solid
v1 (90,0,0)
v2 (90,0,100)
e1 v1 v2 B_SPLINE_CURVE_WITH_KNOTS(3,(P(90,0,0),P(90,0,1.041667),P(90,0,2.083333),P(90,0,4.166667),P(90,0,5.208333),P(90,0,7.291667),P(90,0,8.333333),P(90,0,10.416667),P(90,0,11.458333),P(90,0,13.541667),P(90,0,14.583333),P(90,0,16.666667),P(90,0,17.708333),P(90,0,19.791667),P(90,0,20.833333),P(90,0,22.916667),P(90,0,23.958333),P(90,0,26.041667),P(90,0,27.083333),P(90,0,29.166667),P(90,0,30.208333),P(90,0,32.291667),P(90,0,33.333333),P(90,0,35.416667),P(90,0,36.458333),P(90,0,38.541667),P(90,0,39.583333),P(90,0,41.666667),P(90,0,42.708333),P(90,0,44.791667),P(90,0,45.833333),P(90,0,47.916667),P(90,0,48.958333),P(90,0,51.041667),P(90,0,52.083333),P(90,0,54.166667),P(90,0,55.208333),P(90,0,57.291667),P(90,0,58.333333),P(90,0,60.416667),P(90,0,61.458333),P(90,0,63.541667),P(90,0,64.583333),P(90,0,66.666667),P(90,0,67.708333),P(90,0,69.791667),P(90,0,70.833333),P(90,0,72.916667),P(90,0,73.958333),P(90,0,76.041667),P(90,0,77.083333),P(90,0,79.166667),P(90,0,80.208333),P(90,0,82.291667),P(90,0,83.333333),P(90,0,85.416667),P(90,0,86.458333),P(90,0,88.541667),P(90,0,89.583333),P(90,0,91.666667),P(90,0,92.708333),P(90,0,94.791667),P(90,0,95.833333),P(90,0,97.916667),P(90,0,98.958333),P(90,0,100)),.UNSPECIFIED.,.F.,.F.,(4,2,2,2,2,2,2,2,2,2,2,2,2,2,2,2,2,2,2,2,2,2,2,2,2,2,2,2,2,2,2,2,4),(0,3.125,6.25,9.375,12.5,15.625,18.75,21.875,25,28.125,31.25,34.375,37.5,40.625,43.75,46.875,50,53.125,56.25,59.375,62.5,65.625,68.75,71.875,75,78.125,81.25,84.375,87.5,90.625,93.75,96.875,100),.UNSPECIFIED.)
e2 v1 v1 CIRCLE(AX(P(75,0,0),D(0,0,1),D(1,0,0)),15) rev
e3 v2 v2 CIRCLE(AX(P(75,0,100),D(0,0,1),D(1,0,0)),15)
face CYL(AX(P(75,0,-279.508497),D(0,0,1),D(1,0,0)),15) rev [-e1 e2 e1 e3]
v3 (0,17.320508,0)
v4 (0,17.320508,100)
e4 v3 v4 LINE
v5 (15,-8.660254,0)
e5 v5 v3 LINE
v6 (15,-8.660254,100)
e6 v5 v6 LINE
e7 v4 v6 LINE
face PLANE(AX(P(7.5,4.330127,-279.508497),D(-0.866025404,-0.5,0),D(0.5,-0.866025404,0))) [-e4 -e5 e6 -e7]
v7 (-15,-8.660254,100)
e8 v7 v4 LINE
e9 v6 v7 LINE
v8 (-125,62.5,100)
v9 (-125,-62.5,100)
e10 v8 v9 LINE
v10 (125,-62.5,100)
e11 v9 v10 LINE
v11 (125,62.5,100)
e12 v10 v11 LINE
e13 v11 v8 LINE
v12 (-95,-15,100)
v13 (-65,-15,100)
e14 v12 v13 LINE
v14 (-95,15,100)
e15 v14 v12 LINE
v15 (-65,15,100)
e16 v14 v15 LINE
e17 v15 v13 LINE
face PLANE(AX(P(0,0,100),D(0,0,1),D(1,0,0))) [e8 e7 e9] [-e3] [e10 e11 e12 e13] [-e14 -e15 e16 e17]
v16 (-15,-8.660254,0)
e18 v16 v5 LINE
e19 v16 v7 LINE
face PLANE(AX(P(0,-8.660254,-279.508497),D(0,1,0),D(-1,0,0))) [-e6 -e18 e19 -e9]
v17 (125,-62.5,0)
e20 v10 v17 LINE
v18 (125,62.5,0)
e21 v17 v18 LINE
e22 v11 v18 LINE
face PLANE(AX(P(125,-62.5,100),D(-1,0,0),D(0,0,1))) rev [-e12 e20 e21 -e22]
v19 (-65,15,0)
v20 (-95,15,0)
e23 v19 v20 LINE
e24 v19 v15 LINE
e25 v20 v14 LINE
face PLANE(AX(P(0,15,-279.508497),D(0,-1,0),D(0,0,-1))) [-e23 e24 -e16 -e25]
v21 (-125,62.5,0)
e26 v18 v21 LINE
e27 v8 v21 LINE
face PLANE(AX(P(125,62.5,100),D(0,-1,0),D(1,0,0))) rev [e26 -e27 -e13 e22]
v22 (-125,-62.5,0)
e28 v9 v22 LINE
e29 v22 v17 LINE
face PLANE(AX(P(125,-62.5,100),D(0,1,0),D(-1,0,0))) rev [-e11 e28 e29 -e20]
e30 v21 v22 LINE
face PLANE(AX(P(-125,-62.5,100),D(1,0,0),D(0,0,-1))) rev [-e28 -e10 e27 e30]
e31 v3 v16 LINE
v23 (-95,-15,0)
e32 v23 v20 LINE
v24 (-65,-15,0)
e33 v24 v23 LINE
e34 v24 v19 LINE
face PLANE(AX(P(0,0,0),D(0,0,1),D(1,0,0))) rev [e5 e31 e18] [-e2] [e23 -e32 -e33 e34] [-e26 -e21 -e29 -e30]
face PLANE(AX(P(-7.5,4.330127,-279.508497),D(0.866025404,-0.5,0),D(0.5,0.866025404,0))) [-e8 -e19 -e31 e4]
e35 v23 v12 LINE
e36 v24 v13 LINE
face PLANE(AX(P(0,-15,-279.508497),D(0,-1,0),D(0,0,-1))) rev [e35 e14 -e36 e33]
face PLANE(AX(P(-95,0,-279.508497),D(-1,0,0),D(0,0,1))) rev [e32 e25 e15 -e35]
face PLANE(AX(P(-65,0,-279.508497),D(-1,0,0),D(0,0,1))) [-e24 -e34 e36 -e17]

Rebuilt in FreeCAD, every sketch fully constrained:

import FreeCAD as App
import Part
import Sketcher
Q = App.Units.Quantity

doc = App.newDocument("Part")
body = doc.addObject("PartDesign::Body", "Body")

# Sketch on XY plane
sketch1 = doc.addObject("Sketcher::SketchObject", "Sketch")
body.addObject(sketch1)
sketch1.AttachmentSupport = (doc.XY_Plane, [""])
sketch1.MapMode = "FlatFace"
sketch1.addGeometry(Part.LineSegment(App.Vector(-125, 62, 0), App.Vector(-125, -62, 0)), False)
sketch1.addGeometry(Part.LineSegment(App.Vector(-125, -62, 0), App.Vector(125, -62, 0)), False)
sketch1.addGeometry(Part.LineSegment(App.Vector(125, -62, 0), App.Vector(125, 62, 0)), False)
sketch1.addGeometry(Part.LineSegment(App.Vector(125, 62, 0), App.Vector(-125, 62, 0)), False)
sketch1.addGeometry(Part.LineSegment(App.Vector(115, -58, 0), App.Vector(-115, -58, 0)), False)
sketch1.addGeometry(Part.LineSegment(App.Vector(-115, -58, 0), App.Vector(-115, 58, 0)), False)
sketch1.addGeometry(Part.LineSegment(App.Vector(-115, 58, 0), App.Vector(115, 58, 0)), False)
sketch1.addGeometry(Part.LineSegment(App.Vector(115, 58, 0), App.Vector(115, -58, 0)), False)
sketch1.addConstraint(Sketcher.Constraint("Coincident", 0, 2, 1, 1))
sketch1.addConstraint(Sketcher.Constraint("Coincident", 1, 2, 2, 1))
sketch1.addConstraint(Sketcher.Constraint("Coincident", 2, 2, 3, 1))
sketch1.addConstraint(Sketcher.Constraint("Coincident", 3, 2, 0, 1))
sketch1.addConstraint(Sketcher.Constraint("Coincident", 4, 2, 5, 1))
sketch1.addConstraint(Sketcher.Constraint("Coincident", 5, 2, 6, 1))
sketch1.addConstraint(Sketcher.Constraint("Coincident", 6, 2, 7, 1))
sketch1.addConstraint(Sketcher.Constraint("Coincident", 7, 2, 4, 1))
sketch1.addConstraint(Sketcher.Constraint("Vertical", 0))
sketch1.addConstraint(Sketcher.Constraint("Horizontal", 1))
sketch1.addConstraint(Sketcher.Constraint("Vertical", 2))
sketch1.addConstraint(Sketcher.Constraint("Horizontal", 3))
sketch1.addConstraint(Sketcher.Constraint("Horizontal", 4))
sketch1.addConstraint(Sketcher.Constraint("Vertical", 5))
sketch1.addConstraint(Sketcher.Constraint("Horizontal", 6))
sketch1.addConstraint(Sketcher.Constraint("Vertical", 7))
sketch1.addConstraint(Sketcher.Constraint("Symmetric", 0, 2, 2, 2, -1, 1))
sketch1.addConstraint(Sketcher.Constraint("Symmetric", 4, 2, 6, 2, -1, 1))
sketch1.addConstraint(Sketcher.Constraint("DistanceX", 1, 1, 1, 2, 250.0))
sketch1.addConstraint(Sketcher.Constraint("DistanceX", 4, 2, 4, 1, 230.0))
sketch1.addConstraint(Sketcher.Constraint("DistanceY", 0, 2, 0, 1, 125.0))
sketch1.addConstraint(Sketcher.Constraint("DistanceY", 5, 1, 5, 2, 115.0))
pad1 = doc.addObject("PartDesign::Pad", "Pad")
body.addObject(pad1)
pad1.Profile = sketch1
pad1.Length = 100

# Sketch on XY plane
sketch2 = doc.addObject("Sketcher::SketchObject", "Sketch001")
body.addObject(sketch2)
sketch2.AttachmentSupport = (doc.XY_Plane, [""])
sketch2.MapMode = "FlatFace"
sketch2.AttachmentOffset = App.Placement(App.Vector(0, 0, 100), App.Rotation())
sketch2.addGeometry(Part.LineSegment(App.Vector(-125, 62, 0), App.Vector(-125, -62, 0)), False)
sketch2.addGeometry(Part.LineSegment(App.Vector(-125, -62, 0), App.Vector(125, -62, 0)), False)
sketch2.addGeometry(Part.LineSegment(App.Vector(125, -62, 0), App.Vector(125, 62, 0)), False)
sketch2.addGeometry(Part.LineSegment(App.Vector(125, 62, 0), App.Vector(-125, 62, 0)), False)
sketch2.addGeometry(Part.Circle(App.Vector(75, 0, 0), App.Vector(0, 0, 1), 15), False)
sketch2.addGeometry(Part.LineSegment(App.Vector(0, 17, 0), App.Vector(15, -9, 0)), False)
sketch2.addGeometry(Part.LineSegment(App.Vector(15, -9, 0), App.Vector(-15, -9, 0)), False)
sketch2.addGeometry(Part.LineSegment(App.Vector(-15, -9, 0), App.Vector(0, 17, 0)), False)
sketch2.addGeometry(Part.LineSegment(App.Vector(-65, -15, 0), App.Vector(-95, -15, 0)), False)
sketch2.addGeometry(Part.LineSegment(App.Vector(-95, -15, 0), App.Vector(-95, 15, 0)), False)
sketch2.addGeometry(Part.LineSegment(App.Vector(-95, 15, 0), App.Vector(-65, 15, 0)), False)
sketch2.addGeometry(Part.LineSegment(App.Vector(-65, 15, 0), App.Vector(-65, -15, 0)), False)
sketch2.addConstraint(Sketcher.Constraint("Coincident", 0, 2, 1, 1))
sketch2.addConstraint(Sketcher.Constraint("Coincident", 1, 2, 2, 1))
sketch2.addConstraint(Sketcher.Constraint("Coincident", 2, 2, 3, 1))
sketch2.addConstraint(Sketcher.Constraint("Coincident", 3, 2, 0, 1))
sketch2.addConstraint(Sketcher.Constraint("Coincident", 5, 2, 6, 1))
sketch2.addConstraint(Sketcher.Constraint("Coincident", 6, 2, 7, 1))
sketch2.addConstraint(Sketcher.Constraint("Coincident", 7, 2, 5, 1))
sketch2.addConstraint(Sketcher.Constraint("Coincident", 8, 2, 9, 1))
sketch2.addConstraint(Sketcher.Constraint("Coincident", 9, 2, 10, 1))
sketch2.addConstraint(Sketcher.Constraint("Coincident", 10, 2, 11, 1))
sketch2.addConstraint(Sketcher.Constraint("Coincident", 11, 2, 8, 1))
sketch2.addConstraint(Sketcher.Constraint("Vertical", 0))
sketch2.addConstraint(Sketcher.Constraint("Horizontal", 1))
sketch2.addConstraint(Sketcher.Constraint("Vertical", 2))
sketch2.addConstraint(Sketcher.Constraint("Horizontal", 3))
sketch2.addConstraint(Sketcher.Constraint("Horizontal", 6))
sketch2.addConstraint(Sketcher.Constraint("Horizontal", 8))
sketch2.addConstraint(Sketcher.Constraint("Vertical", 9))
sketch2.addConstraint(Sketcher.Constraint("Horizontal", 10))
sketch2.addConstraint(Sketcher.Constraint("Vertical", 11))
sketch2.addConstraint(Sketcher.Constraint("Symmetric", 0, 2, 2, 2, -1, 1))
sketch2.addConstraint(Sketcher.Constraint("PointOnObject", 4, 3, -1))
sketch2.addConstraint(Sketcher.Constraint("PointOnObject", 7, 2, -2))
sketch2.addConstraint(Sketcher.Constraint("Equal", 6, 8))
sketch2.addConstraint(Sketcher.Constraint("Equal", 10, 9))
sketch2.addConstraint(Sketcher.Constraint("Equal", 5, 7))
sketch2.addConstraint(Sketcher.Constraint("Diameter", 4, 30.0))
sketch2.addConstraint(Sketcher.Constraint("DistanceX", 1, 1, 1, 2, 250.0))
sketch2.addConstraint(Sketcher.Constraint("DistanceX", 6, 2, 6, 1, 30.0))
sketch2.addConstraint(Sketcher.Constraint("DistanceY", 0, 2, 0, 1, 125.0))
sketch2.addConstraint(Sketcher.Constraint("Angle", 5, Q("-60 deg")))
sketch2.addConstraint(Sketcher.Constraint("DistanceX", -1, 1, 4, 3, 75.0))
sketch2.addConstraint(Sketcher.Constraint("DistanceX", 8, 2, -1, 1, 95.0))
sketch2.addConstraint(Sketcher.Constraint("DistanceY", 8, 2, -1, 1, 15.0))
sketch2.addConstraint(Sketcher.Constraint("DistanceY", -1, 1, 7, 2, 17.320508))
pad2 = doc.addObject("PartDesign::Pad", "Pad001")
body.addObject(pad2)
pad2.Profile = sketch2
pad2.Length = 100
pad2.Reversed = True

doc.recompute()
